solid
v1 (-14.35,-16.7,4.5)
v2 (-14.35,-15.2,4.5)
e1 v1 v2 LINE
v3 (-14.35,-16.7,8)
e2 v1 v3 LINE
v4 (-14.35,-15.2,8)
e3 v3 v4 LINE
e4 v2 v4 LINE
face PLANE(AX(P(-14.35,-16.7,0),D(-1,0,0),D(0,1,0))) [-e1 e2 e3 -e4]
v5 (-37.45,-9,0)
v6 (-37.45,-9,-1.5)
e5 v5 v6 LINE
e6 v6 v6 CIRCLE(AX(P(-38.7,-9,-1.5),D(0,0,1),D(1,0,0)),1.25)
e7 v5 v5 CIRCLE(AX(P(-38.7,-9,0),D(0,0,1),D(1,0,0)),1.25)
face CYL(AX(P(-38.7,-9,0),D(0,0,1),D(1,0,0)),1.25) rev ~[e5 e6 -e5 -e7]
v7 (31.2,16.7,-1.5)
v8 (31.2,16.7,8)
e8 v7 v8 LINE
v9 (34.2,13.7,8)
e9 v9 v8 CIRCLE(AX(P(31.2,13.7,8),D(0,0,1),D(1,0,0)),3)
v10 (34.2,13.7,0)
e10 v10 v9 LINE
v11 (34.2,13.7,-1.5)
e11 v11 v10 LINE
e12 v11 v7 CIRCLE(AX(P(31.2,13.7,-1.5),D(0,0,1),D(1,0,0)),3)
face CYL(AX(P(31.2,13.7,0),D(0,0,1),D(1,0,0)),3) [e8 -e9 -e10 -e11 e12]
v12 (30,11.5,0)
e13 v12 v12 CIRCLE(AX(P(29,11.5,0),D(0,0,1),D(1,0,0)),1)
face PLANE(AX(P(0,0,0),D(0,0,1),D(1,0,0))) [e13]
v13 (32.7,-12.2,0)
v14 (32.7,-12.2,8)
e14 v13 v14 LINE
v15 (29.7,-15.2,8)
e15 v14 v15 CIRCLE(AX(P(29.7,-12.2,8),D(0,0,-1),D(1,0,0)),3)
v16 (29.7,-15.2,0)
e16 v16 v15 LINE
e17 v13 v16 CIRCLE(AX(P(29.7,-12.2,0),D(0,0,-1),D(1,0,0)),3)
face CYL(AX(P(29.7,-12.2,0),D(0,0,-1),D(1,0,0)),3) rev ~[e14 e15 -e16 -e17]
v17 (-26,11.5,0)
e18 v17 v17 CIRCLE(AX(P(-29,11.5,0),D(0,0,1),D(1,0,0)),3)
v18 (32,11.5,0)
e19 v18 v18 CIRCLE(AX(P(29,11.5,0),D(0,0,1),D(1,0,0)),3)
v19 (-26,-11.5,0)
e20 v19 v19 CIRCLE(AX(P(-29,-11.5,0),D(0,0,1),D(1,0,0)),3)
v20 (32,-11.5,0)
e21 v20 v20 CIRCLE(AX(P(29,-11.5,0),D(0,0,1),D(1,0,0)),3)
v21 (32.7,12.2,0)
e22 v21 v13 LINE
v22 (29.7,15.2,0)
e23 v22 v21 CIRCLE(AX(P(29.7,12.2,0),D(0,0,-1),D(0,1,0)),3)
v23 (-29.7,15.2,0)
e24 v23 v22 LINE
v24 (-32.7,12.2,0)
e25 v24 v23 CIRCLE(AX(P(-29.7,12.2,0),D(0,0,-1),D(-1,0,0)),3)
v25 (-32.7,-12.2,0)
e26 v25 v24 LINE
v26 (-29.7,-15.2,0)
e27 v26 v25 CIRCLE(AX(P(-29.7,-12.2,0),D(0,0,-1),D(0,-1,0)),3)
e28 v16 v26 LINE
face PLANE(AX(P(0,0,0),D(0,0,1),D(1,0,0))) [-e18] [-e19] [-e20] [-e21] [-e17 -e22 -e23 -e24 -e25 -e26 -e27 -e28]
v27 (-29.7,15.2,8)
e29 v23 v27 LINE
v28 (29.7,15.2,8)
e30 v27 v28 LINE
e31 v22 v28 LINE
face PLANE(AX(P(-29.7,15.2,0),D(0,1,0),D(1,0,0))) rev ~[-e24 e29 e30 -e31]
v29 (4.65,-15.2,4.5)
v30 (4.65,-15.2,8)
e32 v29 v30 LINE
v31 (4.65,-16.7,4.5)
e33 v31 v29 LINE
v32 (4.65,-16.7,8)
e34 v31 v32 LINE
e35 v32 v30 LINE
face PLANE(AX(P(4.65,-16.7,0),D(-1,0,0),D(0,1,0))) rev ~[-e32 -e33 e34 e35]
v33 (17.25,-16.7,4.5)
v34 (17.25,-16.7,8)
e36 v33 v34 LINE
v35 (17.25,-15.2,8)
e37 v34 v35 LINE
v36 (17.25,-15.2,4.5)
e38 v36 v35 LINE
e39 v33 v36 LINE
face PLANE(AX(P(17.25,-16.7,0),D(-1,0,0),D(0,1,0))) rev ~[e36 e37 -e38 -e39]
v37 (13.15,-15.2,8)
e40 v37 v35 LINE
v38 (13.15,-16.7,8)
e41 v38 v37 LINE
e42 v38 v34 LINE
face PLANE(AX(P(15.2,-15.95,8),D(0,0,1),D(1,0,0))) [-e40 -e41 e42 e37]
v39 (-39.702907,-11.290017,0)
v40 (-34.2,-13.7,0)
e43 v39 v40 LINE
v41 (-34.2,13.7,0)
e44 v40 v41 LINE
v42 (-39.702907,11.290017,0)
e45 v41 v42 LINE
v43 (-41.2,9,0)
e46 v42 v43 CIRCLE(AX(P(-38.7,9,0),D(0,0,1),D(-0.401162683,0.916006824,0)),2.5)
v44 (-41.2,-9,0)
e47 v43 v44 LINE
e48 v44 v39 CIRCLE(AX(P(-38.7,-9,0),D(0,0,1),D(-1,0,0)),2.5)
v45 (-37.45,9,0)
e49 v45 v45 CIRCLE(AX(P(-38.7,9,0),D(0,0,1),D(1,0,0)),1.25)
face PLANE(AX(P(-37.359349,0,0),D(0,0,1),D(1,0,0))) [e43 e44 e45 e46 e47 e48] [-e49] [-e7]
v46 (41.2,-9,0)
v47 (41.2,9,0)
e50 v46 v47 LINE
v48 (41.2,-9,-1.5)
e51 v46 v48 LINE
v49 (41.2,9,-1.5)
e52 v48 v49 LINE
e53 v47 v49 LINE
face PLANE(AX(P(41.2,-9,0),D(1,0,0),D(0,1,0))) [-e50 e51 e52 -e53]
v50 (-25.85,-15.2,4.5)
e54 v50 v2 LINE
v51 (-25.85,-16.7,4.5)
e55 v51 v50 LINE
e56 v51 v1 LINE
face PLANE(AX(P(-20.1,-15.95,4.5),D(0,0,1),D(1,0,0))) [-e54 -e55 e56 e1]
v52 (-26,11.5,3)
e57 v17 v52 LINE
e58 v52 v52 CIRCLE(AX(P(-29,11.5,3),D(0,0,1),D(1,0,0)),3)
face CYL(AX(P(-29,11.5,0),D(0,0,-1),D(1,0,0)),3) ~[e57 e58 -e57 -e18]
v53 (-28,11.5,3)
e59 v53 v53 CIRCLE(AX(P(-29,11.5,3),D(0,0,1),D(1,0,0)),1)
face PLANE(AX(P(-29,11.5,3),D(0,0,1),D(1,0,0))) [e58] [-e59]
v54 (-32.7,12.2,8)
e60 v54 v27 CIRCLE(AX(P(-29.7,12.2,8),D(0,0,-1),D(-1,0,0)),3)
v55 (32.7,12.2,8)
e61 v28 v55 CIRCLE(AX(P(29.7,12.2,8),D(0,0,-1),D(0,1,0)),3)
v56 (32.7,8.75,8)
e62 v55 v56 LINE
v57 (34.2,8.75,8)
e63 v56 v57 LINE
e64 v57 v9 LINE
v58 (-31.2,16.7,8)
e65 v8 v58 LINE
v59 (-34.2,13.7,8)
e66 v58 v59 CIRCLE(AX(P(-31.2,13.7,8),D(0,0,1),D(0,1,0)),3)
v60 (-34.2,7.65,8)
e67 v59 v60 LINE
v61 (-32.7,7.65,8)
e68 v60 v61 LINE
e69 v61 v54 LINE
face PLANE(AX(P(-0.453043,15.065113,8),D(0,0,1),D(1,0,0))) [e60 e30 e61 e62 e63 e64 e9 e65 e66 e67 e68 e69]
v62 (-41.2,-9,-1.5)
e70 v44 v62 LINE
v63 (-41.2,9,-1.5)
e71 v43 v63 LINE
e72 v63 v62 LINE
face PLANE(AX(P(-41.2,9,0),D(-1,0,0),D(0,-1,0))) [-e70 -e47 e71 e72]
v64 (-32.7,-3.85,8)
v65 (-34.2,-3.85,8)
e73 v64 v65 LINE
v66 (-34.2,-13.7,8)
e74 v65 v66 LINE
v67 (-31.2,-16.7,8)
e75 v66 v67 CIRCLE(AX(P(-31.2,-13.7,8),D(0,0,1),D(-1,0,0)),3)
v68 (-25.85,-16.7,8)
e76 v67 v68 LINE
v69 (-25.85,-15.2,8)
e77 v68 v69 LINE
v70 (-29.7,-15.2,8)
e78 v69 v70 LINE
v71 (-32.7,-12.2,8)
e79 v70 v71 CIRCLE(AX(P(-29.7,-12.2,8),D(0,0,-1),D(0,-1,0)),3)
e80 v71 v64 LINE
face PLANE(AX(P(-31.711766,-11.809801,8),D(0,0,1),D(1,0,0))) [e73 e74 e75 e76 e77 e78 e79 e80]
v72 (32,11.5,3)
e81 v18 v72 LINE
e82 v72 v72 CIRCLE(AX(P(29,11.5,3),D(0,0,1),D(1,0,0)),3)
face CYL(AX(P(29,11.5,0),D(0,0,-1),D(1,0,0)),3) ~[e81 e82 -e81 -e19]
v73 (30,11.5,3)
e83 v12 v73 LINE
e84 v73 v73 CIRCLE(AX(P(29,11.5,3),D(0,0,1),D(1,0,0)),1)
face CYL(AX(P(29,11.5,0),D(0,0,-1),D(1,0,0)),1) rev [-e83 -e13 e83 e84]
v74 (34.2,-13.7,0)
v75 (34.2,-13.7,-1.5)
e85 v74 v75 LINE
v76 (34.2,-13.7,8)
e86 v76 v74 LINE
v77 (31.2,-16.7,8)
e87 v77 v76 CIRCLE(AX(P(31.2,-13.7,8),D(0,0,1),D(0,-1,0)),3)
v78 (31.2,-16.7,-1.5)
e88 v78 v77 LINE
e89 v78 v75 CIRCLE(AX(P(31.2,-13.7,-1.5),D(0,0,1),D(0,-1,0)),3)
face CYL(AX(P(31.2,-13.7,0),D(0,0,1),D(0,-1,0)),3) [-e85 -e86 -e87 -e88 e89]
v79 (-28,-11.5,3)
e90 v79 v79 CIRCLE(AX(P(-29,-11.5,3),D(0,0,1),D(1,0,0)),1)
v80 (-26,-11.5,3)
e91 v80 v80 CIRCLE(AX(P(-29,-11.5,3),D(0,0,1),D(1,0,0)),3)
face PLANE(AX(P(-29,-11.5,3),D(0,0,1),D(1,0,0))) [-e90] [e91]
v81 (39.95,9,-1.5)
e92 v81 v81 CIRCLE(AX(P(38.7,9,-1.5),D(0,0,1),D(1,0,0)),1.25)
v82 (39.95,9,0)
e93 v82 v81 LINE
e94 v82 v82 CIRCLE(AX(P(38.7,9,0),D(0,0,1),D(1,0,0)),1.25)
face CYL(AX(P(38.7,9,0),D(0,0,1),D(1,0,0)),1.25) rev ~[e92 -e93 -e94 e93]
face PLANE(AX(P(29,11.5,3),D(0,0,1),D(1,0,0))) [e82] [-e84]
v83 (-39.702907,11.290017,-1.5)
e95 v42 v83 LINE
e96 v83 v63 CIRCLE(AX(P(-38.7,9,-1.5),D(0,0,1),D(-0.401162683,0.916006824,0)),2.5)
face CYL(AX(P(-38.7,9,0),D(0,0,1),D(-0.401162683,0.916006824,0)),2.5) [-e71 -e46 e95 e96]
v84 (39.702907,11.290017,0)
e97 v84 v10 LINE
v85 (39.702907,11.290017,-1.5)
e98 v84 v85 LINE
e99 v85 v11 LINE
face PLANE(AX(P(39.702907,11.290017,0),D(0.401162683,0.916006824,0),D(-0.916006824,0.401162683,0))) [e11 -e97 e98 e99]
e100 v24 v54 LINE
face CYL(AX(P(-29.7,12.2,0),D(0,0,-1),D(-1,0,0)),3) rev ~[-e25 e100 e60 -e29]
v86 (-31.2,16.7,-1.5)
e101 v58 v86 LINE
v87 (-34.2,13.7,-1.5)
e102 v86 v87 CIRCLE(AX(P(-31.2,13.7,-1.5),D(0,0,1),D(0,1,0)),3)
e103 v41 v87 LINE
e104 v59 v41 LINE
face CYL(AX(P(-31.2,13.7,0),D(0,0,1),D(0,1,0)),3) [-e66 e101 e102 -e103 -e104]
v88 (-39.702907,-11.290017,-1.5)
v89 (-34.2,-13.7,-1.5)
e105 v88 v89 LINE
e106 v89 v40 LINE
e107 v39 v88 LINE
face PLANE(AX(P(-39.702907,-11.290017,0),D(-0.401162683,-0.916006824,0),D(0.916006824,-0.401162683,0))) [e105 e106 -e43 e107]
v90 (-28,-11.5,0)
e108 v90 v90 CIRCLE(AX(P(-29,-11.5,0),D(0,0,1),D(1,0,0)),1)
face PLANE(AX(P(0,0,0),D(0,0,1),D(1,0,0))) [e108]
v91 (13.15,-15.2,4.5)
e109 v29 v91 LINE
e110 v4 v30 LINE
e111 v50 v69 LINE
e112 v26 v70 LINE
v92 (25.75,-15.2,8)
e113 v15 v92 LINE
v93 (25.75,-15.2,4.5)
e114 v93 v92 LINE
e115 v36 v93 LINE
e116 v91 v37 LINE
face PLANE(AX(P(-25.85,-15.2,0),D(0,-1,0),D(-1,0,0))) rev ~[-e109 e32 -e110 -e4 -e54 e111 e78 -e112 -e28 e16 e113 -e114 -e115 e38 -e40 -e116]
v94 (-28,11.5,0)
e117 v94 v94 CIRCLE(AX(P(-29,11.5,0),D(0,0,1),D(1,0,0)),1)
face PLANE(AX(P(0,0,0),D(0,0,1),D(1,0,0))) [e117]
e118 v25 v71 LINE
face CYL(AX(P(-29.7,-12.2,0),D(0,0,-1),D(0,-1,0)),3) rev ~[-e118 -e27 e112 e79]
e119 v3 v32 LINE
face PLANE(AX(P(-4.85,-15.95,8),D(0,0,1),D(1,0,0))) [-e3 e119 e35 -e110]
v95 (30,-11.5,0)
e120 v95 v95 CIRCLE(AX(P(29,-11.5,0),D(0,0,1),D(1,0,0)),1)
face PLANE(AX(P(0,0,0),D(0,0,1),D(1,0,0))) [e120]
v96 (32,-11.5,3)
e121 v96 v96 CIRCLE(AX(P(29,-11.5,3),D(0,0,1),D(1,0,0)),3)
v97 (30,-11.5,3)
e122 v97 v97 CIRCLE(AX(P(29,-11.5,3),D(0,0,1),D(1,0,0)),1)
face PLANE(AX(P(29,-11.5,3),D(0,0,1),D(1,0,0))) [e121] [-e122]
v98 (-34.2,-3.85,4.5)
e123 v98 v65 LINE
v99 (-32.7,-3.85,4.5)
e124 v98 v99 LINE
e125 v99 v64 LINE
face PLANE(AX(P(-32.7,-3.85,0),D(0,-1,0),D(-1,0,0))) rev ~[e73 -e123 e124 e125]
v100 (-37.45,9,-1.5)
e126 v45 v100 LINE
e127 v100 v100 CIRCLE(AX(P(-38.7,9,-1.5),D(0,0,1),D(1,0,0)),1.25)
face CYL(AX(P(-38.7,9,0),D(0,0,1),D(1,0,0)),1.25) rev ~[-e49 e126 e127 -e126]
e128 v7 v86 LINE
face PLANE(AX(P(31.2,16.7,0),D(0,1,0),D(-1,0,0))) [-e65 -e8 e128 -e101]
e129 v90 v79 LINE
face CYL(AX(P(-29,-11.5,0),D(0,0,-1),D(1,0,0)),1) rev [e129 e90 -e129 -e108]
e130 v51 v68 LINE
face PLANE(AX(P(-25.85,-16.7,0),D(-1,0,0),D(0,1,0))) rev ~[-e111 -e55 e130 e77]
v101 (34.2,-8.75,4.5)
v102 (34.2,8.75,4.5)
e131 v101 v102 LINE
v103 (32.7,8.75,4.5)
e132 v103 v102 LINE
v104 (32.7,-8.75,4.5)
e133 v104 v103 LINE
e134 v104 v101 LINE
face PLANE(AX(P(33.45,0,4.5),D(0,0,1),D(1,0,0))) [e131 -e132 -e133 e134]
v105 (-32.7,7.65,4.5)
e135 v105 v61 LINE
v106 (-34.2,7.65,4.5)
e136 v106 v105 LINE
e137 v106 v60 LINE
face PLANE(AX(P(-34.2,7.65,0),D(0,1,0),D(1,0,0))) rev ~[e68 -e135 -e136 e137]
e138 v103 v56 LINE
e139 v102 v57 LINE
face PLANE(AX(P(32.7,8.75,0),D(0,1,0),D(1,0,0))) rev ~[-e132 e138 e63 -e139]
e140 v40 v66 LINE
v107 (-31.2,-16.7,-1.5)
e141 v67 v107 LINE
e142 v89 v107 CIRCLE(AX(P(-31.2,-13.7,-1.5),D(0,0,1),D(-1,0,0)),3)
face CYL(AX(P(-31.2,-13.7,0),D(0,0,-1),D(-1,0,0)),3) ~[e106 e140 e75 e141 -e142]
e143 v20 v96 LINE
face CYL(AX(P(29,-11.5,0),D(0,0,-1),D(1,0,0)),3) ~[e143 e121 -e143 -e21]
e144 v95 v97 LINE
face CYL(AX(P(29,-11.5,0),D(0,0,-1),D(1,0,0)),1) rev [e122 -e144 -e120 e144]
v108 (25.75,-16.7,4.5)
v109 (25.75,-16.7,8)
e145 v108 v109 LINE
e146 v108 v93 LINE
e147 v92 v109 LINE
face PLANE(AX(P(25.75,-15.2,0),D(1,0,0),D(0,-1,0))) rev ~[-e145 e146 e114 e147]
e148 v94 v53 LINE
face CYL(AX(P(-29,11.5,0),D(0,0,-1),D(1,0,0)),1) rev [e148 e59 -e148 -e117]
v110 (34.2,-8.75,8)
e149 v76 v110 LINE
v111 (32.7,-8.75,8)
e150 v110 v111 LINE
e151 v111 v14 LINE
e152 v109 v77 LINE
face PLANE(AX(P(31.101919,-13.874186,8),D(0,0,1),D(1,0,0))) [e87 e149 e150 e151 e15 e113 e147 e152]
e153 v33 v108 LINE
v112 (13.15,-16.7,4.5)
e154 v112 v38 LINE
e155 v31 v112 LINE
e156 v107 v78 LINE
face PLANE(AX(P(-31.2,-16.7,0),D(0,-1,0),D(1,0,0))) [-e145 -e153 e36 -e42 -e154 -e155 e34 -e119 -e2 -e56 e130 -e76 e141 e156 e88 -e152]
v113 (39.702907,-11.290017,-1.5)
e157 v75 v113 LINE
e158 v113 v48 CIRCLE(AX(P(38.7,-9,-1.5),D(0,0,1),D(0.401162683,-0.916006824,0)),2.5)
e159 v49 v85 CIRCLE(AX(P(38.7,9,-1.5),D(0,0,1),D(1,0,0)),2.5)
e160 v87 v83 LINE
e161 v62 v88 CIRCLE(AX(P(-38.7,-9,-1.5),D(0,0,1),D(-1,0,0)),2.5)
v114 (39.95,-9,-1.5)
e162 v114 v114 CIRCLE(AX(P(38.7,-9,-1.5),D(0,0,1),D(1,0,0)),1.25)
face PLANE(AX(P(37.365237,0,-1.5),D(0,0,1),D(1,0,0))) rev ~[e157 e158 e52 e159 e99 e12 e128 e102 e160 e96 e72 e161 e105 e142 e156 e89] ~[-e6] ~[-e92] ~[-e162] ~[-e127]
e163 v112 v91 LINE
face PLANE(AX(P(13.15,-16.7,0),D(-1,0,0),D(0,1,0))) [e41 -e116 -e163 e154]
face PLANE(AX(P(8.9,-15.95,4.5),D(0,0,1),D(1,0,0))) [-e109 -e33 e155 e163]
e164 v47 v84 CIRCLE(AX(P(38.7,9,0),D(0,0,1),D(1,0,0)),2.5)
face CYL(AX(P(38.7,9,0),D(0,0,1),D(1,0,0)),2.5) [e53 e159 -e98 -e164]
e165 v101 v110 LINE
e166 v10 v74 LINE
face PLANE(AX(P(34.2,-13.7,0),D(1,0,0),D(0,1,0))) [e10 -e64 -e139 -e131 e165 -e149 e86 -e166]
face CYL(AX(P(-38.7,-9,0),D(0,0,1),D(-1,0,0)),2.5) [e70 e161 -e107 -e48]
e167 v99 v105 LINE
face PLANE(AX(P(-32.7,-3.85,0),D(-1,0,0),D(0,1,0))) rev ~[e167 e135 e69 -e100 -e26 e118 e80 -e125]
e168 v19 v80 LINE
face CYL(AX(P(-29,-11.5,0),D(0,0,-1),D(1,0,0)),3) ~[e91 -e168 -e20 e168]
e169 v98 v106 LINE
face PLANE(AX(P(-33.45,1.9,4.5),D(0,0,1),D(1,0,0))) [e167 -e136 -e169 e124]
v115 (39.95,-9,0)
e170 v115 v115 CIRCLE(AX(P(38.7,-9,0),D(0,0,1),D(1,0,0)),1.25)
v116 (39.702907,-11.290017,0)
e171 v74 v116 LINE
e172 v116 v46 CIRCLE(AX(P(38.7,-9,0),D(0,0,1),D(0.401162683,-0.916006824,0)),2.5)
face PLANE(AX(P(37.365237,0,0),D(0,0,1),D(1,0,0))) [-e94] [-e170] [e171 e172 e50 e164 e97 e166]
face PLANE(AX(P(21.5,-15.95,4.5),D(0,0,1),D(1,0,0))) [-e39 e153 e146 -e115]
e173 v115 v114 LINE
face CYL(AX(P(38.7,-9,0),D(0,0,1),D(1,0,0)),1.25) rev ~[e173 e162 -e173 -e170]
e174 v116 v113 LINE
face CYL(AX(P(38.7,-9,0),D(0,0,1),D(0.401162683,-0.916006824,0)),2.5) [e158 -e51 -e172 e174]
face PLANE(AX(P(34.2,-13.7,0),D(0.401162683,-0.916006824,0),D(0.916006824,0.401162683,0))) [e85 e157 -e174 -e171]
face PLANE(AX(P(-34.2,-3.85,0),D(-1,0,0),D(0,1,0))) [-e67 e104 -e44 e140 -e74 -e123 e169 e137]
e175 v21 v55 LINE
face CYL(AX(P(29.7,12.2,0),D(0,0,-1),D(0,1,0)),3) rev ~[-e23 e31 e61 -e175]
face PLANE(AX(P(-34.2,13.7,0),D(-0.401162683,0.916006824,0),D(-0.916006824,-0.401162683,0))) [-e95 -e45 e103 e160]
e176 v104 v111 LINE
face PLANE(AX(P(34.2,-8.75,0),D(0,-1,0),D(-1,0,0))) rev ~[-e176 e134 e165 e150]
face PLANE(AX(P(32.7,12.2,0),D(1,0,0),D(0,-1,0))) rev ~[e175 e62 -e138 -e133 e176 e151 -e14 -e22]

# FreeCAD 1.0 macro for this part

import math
import FreeCAD as App
import Part
import Sketcher


def add_polygon(sketch, points):
    """Adds a closed chain of lines whose ends are joined by coincident constraints."""
    first, n = sketch.GeometryCount, len(points)
    for a, b in zip(points, points[1:] + points[:1]):
        sketch.addGeometry(Part.LineSegment(App.Vector(*a, 0), App.Vector(*b, 0)), False)
    for i in range(n):
        sketch.addConstraint(Sketcher.Constraint("Coincident", first + i, 2, first + (i + 1) % n, 1))

doc = App.newDocument("Part")
body = doc.addObject("PartDesign::Body", "Body")

# Sketch on XY plane
sketch1 = body.newObject("Sketcher::SketchObject", "Sketch")
sketch1.AttachmentSupport = (doc.getObject("XY_Plane"), [""])
sketch1.MapMode = "FlatFace"
sketch1.addGeometry(Part.ArcOfCircle(Part.Circle(App.Vector(31.2, 13.7, 0), App.Vector(0, 0, 1), 3), math.radians(0), math.radians(90)), False)
sketch1.addGeometry(Part.LineSegment(App.Vector(31.2, 16.7, 0), App.Vector(-31.2, 16.7, 0)), False)
sketch1.addGeometry(Part.ArcOfCircle(Part.Circle(App.Vector(-31.2, 13.7, 0), App.Vector(0, 0, 1), 3), math.radians(90), math.radians(180)), False)
sketch1.addGeometry(Part.LineSegment(App.Vector(-34.2, 13.7, 0), App.Vector(-34.2, -13.7, 0)), False)
sketch1.addGeometry(Part.ArcOfCircle(Part.Circle(App.Vector(-31.2, -13.7, 0), App.Vector(0, 0, 1), 3), math.radians(180), math.radians(270)), False)
sketch1.addGeometry(Part.LineSegment(App.Vector(-31.2, -16.7, 0), App.Vector(31.2, -16.7, 0)), False)
sketch1.addGeometry(Part.ArcOfCircle(Part.Circle(App.Vector(31.2, -13.7, 0), App.Vector(0, 0, 1), 3), math.radians(-90), math.radians(0)), False)
sketch1.addGeometry(Part.LineSegment(App.Vector(34.2, -13.7, 0), App.Vector(34.2, 13.7, 0)), False)
sketch1.addConstraint(Sketcher.Constraint("Tangent", 0, 2, 1, 1))
sketch1.addConstraint(Sketcher.Constraint("Tangent", 1, 2, 2, 1))
sketch1.addConstraint(Sketcher.Constraint("Tangent", 2, 2, 3, 1))
sketch1.addConstraint(Sketcher.Constraint("Tangent", 3, 2, 4, 1))
sketch1.addConstraint(Sketcher.Constraint("Tangent", 4, 2, 5, 1))
sketch1.addConstraint(Sketcher.Constraint("Tangent", 5, 2, 6, 1))
sketch1.addConstraint(Sketcher.Constraint("Tangent", 6, 2, 7, 1))
sketch1.addConstraint(Sketcher.Constraint("Tangent", 7, 2, 0, 1))
sketch1.addConstraint(Sketcher.Constraint("Horizontal", 1))
sketch1.addConstraint(Sketcher.Constraint("Vertical", 3))
sketch1.addConstraint(Sketcher.Constraint("Horizontal", 5))
sketch1.addConstraint(Sketcher.Constraint("Vertical", 7))
sketch1.addConstraint(Sketcher.Constraint("Equal", 0, 2))
sketch1.addConstraint(Sketcher.Constraint("Equal", 2, 4))
sketch1.addConstraint(Sketcher.Constraint("Equal", 4, 6))
sketch1.addConstraint(Sketcher.Constraint("Symmetric", 0, 3, 4, 3, -1, 1))
sketch1.addConstraint(Sketcher.Constraint("Radius", 0, 3.0))
sketch1.addConstraint(Sketcher.Constraint("DistanceX", 1, 2, 1, 1, 62.4))
sketch1.addConstraint(Sketcher.Constraint("DistanceY", 3, 2, 3, 1, 27.4))
pad1 = body.newObject("PartDesign::Pad", "Pad")
pad1.Profile = sketch1
pad1.Length = 1.5
pad1.Reversed = True

# Sketch on XY plane
sketch2 = body.newObject("Sketcher::SketchObject", "Sketch001")
sketch2.AttachmentSupport = (doc.getObject("XY_Plane"), [""])
sketch2.MapMode = "FlatFace"
sketch2.addGeometry(Part.Circle(App.Vector(-29, 11.5, 0), App.Vector(0, 0, 1), 3), False)
sketch2.addGeometry(Part.Circle(App.Vector(-29, 11.5, 0), App.Vector(0, 0, 1), 1), False)
sketch2.addGeometry(Part.Circle(App.Vector(-29, -11.5, 0), App.Vector(0, 0, 1), 3), False)
sketch2.addGeometry(Part.Circle(App.Vector(-29, -11.5, 0), App.Vector(0, 0, 1), 1), False)
sketch2.addGeometry(Part.Circle(App.Vector(29, 11.5, 0), App.Vector(0, 0, 1), 3), False)
sketch2.addGeometry(Part.Circle(App.Vector(29, 11.5, 0), App.Vector(0, 0, 1), 1), False)
sketch2.addGeometry(Part.Circle(App.Vector(29, -11.5, 0), App.Vector(0, 0, 1), 3), False)
sketch2.addGeometry(Part.Circle(App.Vector(29, -11.5, 0), App.Vector(0, 0, 1), 1), False)
sketch2.addConstraint(Sketcher.Constraint("Coincident", 1, 3, 0, 3))
sketch2.addConstraint(Sketcher.Constraint("Coincident", 3, 3, 2, 3))
sketch2.addConstraint(Sketcher.Constraint("Coincident", 5, 3, 4, 3))
sketch2.addConstraint(Sketcher.Constraint("Coincident", 7, 3, 6, 3))
sketch2.addConstraint(Sketcher.Constraint("Equal", 0, 2))
sketch2.addConstraint(Sketcher.Constraint("Equal", 1, 3))
sketch2.addConstraint(Sketcher.Constraint("Equal", 2, 4))
sketch2.addConstraint(Sketcher.Constraint("Equal", 3, 5))
sketch2.addConstraint(Sketcher.Constraint("Equal", 4, 6))
sketch2.addConstraint(Sketcher.Constraint("Equal", 5, 7))
sketch2.addConstraint(Sketcher.Constraint("Symmetric", 2, 3, 4, 3, -1, 1))
sketch2.addConstraint(Sketcher.Constraint("Symmetric", 0, 3, 6, 3, -1, 1))
sketch2.addConstraint(Sketcher.Constraint("Symmetric", 0, 3, 4, 3, -2))
sketch2.addConstraint(Sketcher.Constraint("Diameter", 0, 6.0))
sketch2.addConstraint(Sketcher.Constraint("Diameter", 1, 2.0))
sketch2.addConstraint(Sketcher.Constraint("DistanceX", 0, 3, -1, 1, 29.0))
sketch2.addConstraint(Sketcher.Constraint("DistanceY", 2, 3, 0, 3, 23.0))
pad2 = body.newObject("PartDesign::Pad", "Pad001")
pad2.Profile = sketch2
pad2.Length = 3

# Sketch on XY plane
sketch3 = body.newObject("Sketcher::SketchObject", "Sketch002")
sketch3.AttachmentSupport = (doc.getObject("XY_Plane"), [""])
sketch3.MapMode = "FlatFace"
sketch3.addGeometry(Part.LineSegment(App.Vector(-32.7, -12.2, 0), App.Vector(-32.7, -3.9, 0)), False)  # 0
sketch3.addGeometry(Part.LineSegment(App.Vector(-32.7, -3.9, 0), App.Vector(-34.2, -3.9, 0)), False)  # 1
sketch3.addGeometry(Part.LineSegment(App.Vector(-34.2, -3.9, 0), App.Vector(-34.2, -13.7, 0)), False)  # 2
sketch3.addGeometry(Part.ArcOfCircle(Part.Circle(App.Vector(-31.2, -13.7, 0), App.Vector(0, 0, 1), 3), math.radians(180), math.radians(270)), False)  # 3
sketch3.addGeometry(Part.LineSegment(App.Vector(-31.2, -16.7, 0), App.Vector(-25.9, -16.7, 0)), False)  # 4
sketch3.addGeometry(Part.LineSegment(App.Vector(-25.9, -16.7, 0), App.Vector(-25.9, -15.2, 0)), False)  # 5
sketch3.addGeometry(Part.LineSegment(App.Vector(-25.9, -15.2, 0), App.Vector(-29.7, -15.2, 0)), False)  # 6
sketch3.addGeometry(Part.ArcOfCircle(Part.Circle(App.Vector(-29.7, -12.2, 0), App.Vector(0, 0, 1), 3), math.radians(180), math.radians(270)), False)  # 7
sketch3.addGeometry(Part.ArcOfCircle(Part.Circle(App.Vector(-29.7, 12.2, 0), App.Vector(0, 0, 1), 3), math.radians(90), math.radians(180)), False)  # 8
sketch3.addGeometry(Part.LineSegment(App.Vector(-29.7, 15.2, 0), App.Vector(29.7, 15.2, 0)), False)  # 9
sketch3.addGeometry(Part.ArcOfCircle(Part.Circle(App.Vector(29.7, 12.2, 0), App.Vector(0, 0, 1), 3), math.radians(0), math.radians(90)), False)  # 10
sketch3.addGeometry(Part.LineSegment(App.Vector(32.7, 12.2, 0), App.Vector(32.7, 8.8, 0)), False)  # 11
sketch3.addGeometry(Part.LineSegment(App.Vector(32.7, 8.8, 0), App.Vector(34.2, 8.8, 0)), False)  # 12
sketch3.addGeometry(Part.LineSegment(App.Vector(34.2, 8.8, 0), App.Vector(34.2, 13.7, 0)), False)  # 13
sketch3.addGeometry(Part.ArcOfCircle(Part.Circle(App.Vector(31.2, 13.7, 0), App.Vector(0, 0, 1), 3), math.radians(0), math.radians(90)), False)  # 14
sketch3.addGeometry(Part.LineSegment(App.Vector(31.2, 16.7, 0), App.Vector(-31.2, 16.7, 0)), False)  # 15
sketch3.addGeometry(Part.ArcOfCircle(Part.Circle(App.Vector(-31.2, 13.7, 0), App.Vector(0, 0, 1), 3), math.radians(90), math.radians(180)), False)  # 16
sketch3.addGeometry(Part.LineSegment(App.Vector(-34.2, 13.7, 0), App.Vector(-34.2, 7.7, 0)), False)  # 17
sketch3.addGeometry(Part.LineSegment(App.Vector(-34.2, 7.7, 0), App.Vector(-32.7, 7.7, 0)), False)  # 18
sketch3.addGeometry(Part.LineSegment(App.Vector(-32.7, 7.7, 0), App.Vector(-32.7, 12.2, 0)), False)  # 19
add_polygon(sketch3, [(-14.3, -15.2), (-14.3, -16.7), (4.7, -16.7), (4.7, -15.2)])  # lines 20-23
add_polygon(sketch3, [(13.2, -15.2), (13.2, -16.7), (17.2, -16.7), (17.2, -15.2)])  # lines 24-27
sketch3.addGeometry(Part.LineSegment(App.Vector(34.2, -8.8, 0), App.Vector(32.7, -8.8, 0)), False)  # 28
sketch3.addGeometry(Part.LineSegment(App.Vector(32.7, -8.8, 0), App.Vector(32.7, -12.2, 0)), False)  # 29
sketch3.addGeometry(Part.ArcOfCircle(Part.Circle(App.Vector(29.7, -12.2, 0), App.Vector(0, 0, 1), 3), math.radians(-90), math.radians(0)), False)  # 30
sketch3.addGeometry(Part.LineSegment(App.Vector(29.7, -15.2, 0), App.Vector(25.8, -15.2, 0)), False)  # 31
sketch3.addGeometry(Part.LineSegment(App.Vector(25.8, -15.2, 0), App.Vector(25.8, -16.7, 0)), False)  # 32
sketch3.addGeometry(Part.LineSegment(App.Vector(25.8, -16.7, 0), App.Vector(31.2, -16.7, 0)), False)  # 33
sketch3.addGeometry(Part.ArcOfCircle(Part.Circle(App.Vector(31.2, -13.7, 0), App.Vector(0, 0, 1), 3), math.radians(-90), math.radians(0)), False)  # 34
sketch3.addGeometry(Part.LineSegment(App.Vector(34.2, -13.7, 0), App.Vector(34.2, -8.8, 0)), False)  # 35
sketch3.addConstraint(Sketcher.Constraint("Coincident", 0, 2, 1, 1))
sketch3.addConstraint(Sketcher.Constraint("Coincident", 1, 2, 2, 1))
sketch3.addConstraint(Sketcher.Constraint("Tangent", 2, 2, 3, 1))
sketch3.addConstraint(Sketcher.Constraint("Tangent", 3, 2, 4, 1))
sketch3.addConstraint(Sketcher.Constraint("Coincident", 4, 2, 5, 1))
sketch3.addConstraint(Sketcher.Constraint("Coincident", 5, 2, 6, 1))
sketch3.addConstraint(Sketcher.Constraint("Tangent", 6, 2, 7, 2))
sketch3.addConstraint(Sketcher.Constraint("Tangent", 7, 1, 0, 1))
sketch3.addConstraint(Sketcher.Constraint("Tangent", 8, 1, 9, 1))
sketch3.addConstraint(Sketcher.Constraint("Tangent", 9, 2, 10, 2))
sketch3.addConstraint(Sketcher.Constraint("Tangent", 10, 1, 11, 1))
sketch3.addConstraint(Sketcher.Constraint("Coincident", 11, 2, 12, 1))
sketch3.addConstraint(Sketcher.Constraint("Coincident", 12, 2, 13, 1))
sketch3.addConstraint(Sketcher.Constraint("Tangent", 13, 2, 14, 1))
sketch3.addConstraint(Sketcher.Constraint("Tangent", 14, 2, 15, 1))
sketch3.addConstraint(Sketcher.Constraint("Tangent", 15, 2, 16, 1))
sketch3.addConstraint(Sketcher.Constraint("Tangent", 16, 2, 17, 1))
sketch3.addConstraint(Sketcher.Constraint("Coincident", 17, 2, 18, 1))
sketch3.addConstraint(Sketcher.Constraint("Coincident", 18, 2, 19, 1))
sketch3.addConstraint(Sketcher.Constraint("Tangent", 19, 2, 8, 2))
sketch3.addConstraint(Sketcher.Constraint("Coincident", 28, 2, 29, 1))
sketch3.addConstraint(Sketcher.Constraint("Tangent", 29, 2, 30, 2))
sketch3.addConstraint(Sketcher.Constraint("Tangent", 30, 1, 31, 1))
sketch3.addConstraint(Sketcher.Constraint("Coincident", 31, 2, 32, 1))
sketch3.addConstraint(Sketcher.Constraint("Coincident", 32, 2, 33, 1))
sketch3.addConstraint(Sketcher.Constraint("Tangent", 33, 2, 34, 1))
sketch3.addConstraint(Sketcher.Constraint("Tangent", 34, 2, 35, 1))
sketch3.addConstraint(Sketcher.Constraint("Coincident", 35, 2, 28, 1))
sketch3.addConstraint(Sketcher.Constraint("Vertical", 0))
sketch3.addConstraint(Sketcher.Constraint("Horizontal", 1))
sketch3.addConstraint(Sketcher.Constraint("Vertical", 2))
sketch3.addConstraint(Sketcher.Constraint("Horizontal", 4))
sketch3.addConstraint(Sketcher.Constraint("Vertical", 5))
sketch3.addConstraint(Sketcher.Constraint("Horizontal", 6))
sketch3.addConstraint(Sketcher.Constraint("Horizontal", 9))
sketch3.addConstraint(Sketcher.Constraint("Vertical", 11))
sketch3.addConstraint(Sketcher.Constraint("Horizontal", 12))
sketch3.addConstraint(Sketcher.Constraint("Vertical", 13))
sketch3.addConstraint(Sketcher.Constraint("Horizontal", 15))
sketch3.addConstraint(Sketcher.Constraint("Vertical", 17))
sketch3.addConstraint(Sketcher.Constraint("Horizontal", 18))
sketch3.addConstraint(Sketcher.Constraint("Vertical", 19))
sketch3.addConstraint(Sketcher.Constraint("Vertical", 20))
sketch3.addConstraint(Sketcher.Constraint("Horizontal", 21))
sketch3.addConstraint(Sketcher.Constraint("Vertical", 22))
sketch3.addConstraint(Sketcher.Constraint("Horizontal", 23))
sketch3.addConstraint(Sketcher.Constraint("Vertical", 24))
sketch3.addConstraint(Sketcher.Constraint("Horizontal", 25))
sketch3.addConstraint(Sketcher.Constraint("Vertical", 26))
sketch3.addConstraint(Sketcher.Constraint("Horizontal", 27))
sketch3.addConstraint(Sketcher.Constraint("Horizontal", 28))
sketch3.addConstraint(Sketcher.Constraint("Vertical", 29))
sketch3.addConstraint(Sketcher.Constraint("Horizontal", 31))
sketch3.addConstraint(Sketcher.Constraint("Vertical", 32))
sketch3.addConstraint(Sketcher.Constraint("Horizontal", 33))
sketch3.addConstraint(Sketcher.Constraint("Vertical", 35))
sketch3.addConstraint(Sketcher.Constraint("Equal", 3, 7))
sketch3.addConstraint(Sketcher.Constraint("Equal", 7, 8))
sketch3.addConstraint(Sketcher.Constraint("Equal", 8, 10))
sketch3.addConstraint(Sketcher.Constraint("Equal", 10, 14))
sketch3.addConstraint(Sketcher.Constraint("Equal", 14, 16))
sketch3.addConstraint(Sketcher.Constraint("Equal", 16, 30))
sketch3.addConstraint(Sketcher.Constraint("Equal", 30, 34))
sketch3.addConstraint(Sketcher.Constraint("Symmetric", 7, 3, 10, 3, -1, 1))
sketch3.addConstraint(Sketcher.Constraint("Symmetric", 3, 3, 14, 3, -1, 1))
sketch3.addConstraint(Sketcher.Constraint("Symmetric", 8, 3, 30, 3, -1, 1))
sketch3.addConstraint(Sketcher.Constraint("Symmetric", 16, 3, 34, 3, -1, 1))
sketch3.addConstraint(Sketcher.Constraint("Symmetric", 11, 2, 28, 2, -1))
sketch3.addConstraint(Sketcher.Constraint("Horizontal", 4, 2, 20, 2))
sketch3.addConstraint(Sketcher.Constraint("Horizontal", 6, 2, 22, 2))
sketch3.addConstraint(Sketcher.Constraint("Horizontal", 21, 2, 24, 2))
sketch3.addConstraint(Sketcher.Constraint("Horizontal", 23, 2, 26, 2))
sketch3.addConstraint(Sketcher.Constraint("Vertical", 3, 3, 16, 3))
sketch3.addConstraint(Sketcher.Constraint("Equal", 28, 5))
sketch3.addConstraint(Sketcher.Constraint("Radius", 3, 3.0))
sketch3.addConstraint(Sketcher.Constraint("DistanceX", 21, 1, 21, 2, 19.0))
sketch3.addConstraint(Sketcher.Constraint("DistanceX", 1, 2, 1, 1, 1.5))
sketch3.addConstraint(Sketcher.Constraint("DistanceX", 9, 1, 9, 2, 59.4))
sketch3.addConstraint(Sketcher.Constraint("DistanceX", 25, 1, 25, 2, 4.1))
sketch3.addConstraint(Sketcher.Constraint("DistanceX", 4, 1, 4, 2, 5.35))
sketch3.addConstraint(Sketcher.Constraint("DistanceX", 31, 2, 31, 1, 3.95))
sketch3.addConstraint(Sketcher.Constraint("DistanceY", 0, 1, 0, 2, 8.35))
sketch3.addConstraint(Sketcher.Constraint("DistanceY", 11, 2, 11, 1, 3.45))
sketch3.addConstraint(Sketcher.Constraint("DistanceY", 17, 2, 17, 1, 6.05))
sketch3.addConstraint(Sketcher.Constraint("DistanceY", 3, 3, -1, 1, 13.7))
sketch3.addConstraint(Sketcher.Constraint("DistanceX", 4, 2, 20, 2, 11.5))
sketch3.addConstraint(Sketcher.Constraint("DistanceX", 21, 2, 24, 2, 8.5))
pad3 = body.newObject("PartDesign::Pad", "Pad002")
pad3.Profile = sketch3
pad3.Length = 8

# Sketch on XY plane
sketch4 = body.newObject("Sketcher::SketchObject", "Sketch003")
sketch4.AttachmentSupport = (doc.getObject("XY_Plane"), [""])
sketch4.MapMode = "FlatFace"
add_polygon(sketch4, [(-34.2, 7.7), (-34.2, -3.9), (-32.7, -3.9), (-32.7, 7.7)])  # lines 0-3
add_polygon(sketch4, [(-25.9, -15.2), (-25.9, -16.7), (-14.3, -16.7), (-14.3, -15.2)])  # lines 4-7
add_polygon(sketch4, [(4.7, -15.2), (4.7, -16.7), (13.2, -16.7), (13.2, -15.2)])  # lines 8-11
add_polygon(sketch4, [(17.2, -15.2), (17.2, -16.7), (25.8, -16.7), (25.8, -15.2)])  # lines 12-15
add_polygon(sketch4, [(32.7, 8.8), (32.7, -8.8), (34.2, -8.8), (34.2, 8.8)])  # lines 16-19
sketch4.addConstraint(Sketcher.Constraint("Vertical", 0))
sketch4.addConstraint(Sketcher.Constraint("Horizontal", 1))
sketch4.addConstraint(Sketcher.Constraint("Vertical", 2))
sketch4.addConstraint(Sketcher.Constraint("Horizontal", 3))
sketch4.addConstraint(Sketcher.Constraint("Vertical", 4))
sketch4.addConstraint(Sketcher.Constraint("Horizontal", 5))
sketch4.addConstraint(Sketcher.Constraint("Vertical", 6))
sketch4.addConstraint(Sketcher.Constraint("Horizontal", 7))
sketch4.addConstraint(Sketcher.Constraint("Vertical", 8))
sketch4.addConstraint(Sketcher.Constraint("Horizontal", 9))
sketch4.addConstraint(Sketcher.Constraint("Vertical", 10))
sketch4.addConstraint(Sketcher.Constraint("Horizontal", 11))
sketch4.addConstraint(Sketcher.Constraint("Vertical", 12))
sketch4.addConstraint(Sketcher.Constraint("Horizontal", 13))
sketch4.addConstraint(Sketcher.Constraint("Vertical", 14))
sketch4.addConstraint(Sketcher.Constraint("Horizontal", 15))
sketch4.addConstraint(Sketcher.Constraint("Vertical", 16))
sketch4.addConstraint(Sketcher.Constraint("Horizontal", 17))
sketch4.addConstraint(Sketcher.Constraint("Vertical", 18))
sketch4.addConstraint(Sketcher.Constraint("Horizontal", 19))
sketch4.addConstraint(Sketcher.Constraint("Horizontal", 5, 2, 8, 2))
sketch4.addConstraint(Sketcher.Constraint("Horizontal", 7, 2, 10, 2))
sketch4.addConstraint(Sketcher.Constraint("Horizontal", 9, 2, 12, 2))
sketch4.addConstraint(Sketcher.Constraint("Horizontal", 11, 2, 14, 2))
sketch4.addConstraint(Sketcher.Constraint("Equal", 11, 13))
sketch4.addConstraint(Sketcher.Constraint("Equal", 3, 17))
sketch4.addConstraint(Sketcher.Constraint("Equal", 7, 0))
sketch4.addConstraint(Sketcher.Constraint("Equal", 19, 4))
sketch4.addConstraint(Sketcher.Constraint("DistanceX", 1, 1, 1, 2, 1.5))
sketch4.addConstraint(Sketcher.Constraint("DistanceX", 5, 1, 5, 2, 11.5))
sketch4.addConstraint(Sketcher.Constraint("DistanceX", 9, 1, 9, 2, 8.5))
sketch4.addConstraint(Sketcher.Constraint("DistanceY", 16, 2, 16, 1, 17.5))
sketch4.addConstraint(Sketcher.Constraint("DistanceX", 5, 2, 8, 2, 19.0))
sketch4.addConstraint(Sketcher.Constraint("DistanceX", 0, 2, -1, 1, 34.2))
sketch4.addConstraint(Sketcher.Constraint("DistanceY", 4, 2, -1, 1, 16.7))
sketch4.addConstraint(Sketcher.Constraint("DistanceX", -1, 1, 16, 2, 32.7))
sketch4.addConstraint(Sketcher.Constraint("DistanceX", 9, 2, 12, 2, 4.1))
sketch4.addConstraint(Sketcher.Constraint("DistanceY", 0, 2, -1, 1, 3.85))
sketch4.addConstraint(Sketcher.Constraint("DistanceX", 4, 2, -1, 1, 25.85))
sketch4.addConstraint(Sketcher.Constraint("DistanceY", 16, 2, -1, 1, 8.75))
pad4 = body.newObject("PartDesign::Pad", "Pad003")
pad4.Profile = sketch4
pad4.Length = 4.5

# Sketch on XY plane
sketch5 = body.newObject("Sketcher::SketchObject", "Sketch004")
sketch5.AttachmentSupport = (doc.getObject("XY_Plane"), [""])
sketch5.MapMode = "FlatFace"
sketch5.addGeometry(Part.LineSegment(App.Vector(39.7, 11.3, 0), App.Vector(34.2, 13.7, 0)), False)
sketch5.addGeometry(Part.LineSegment(App.Vector(34.2, 13.7, 0), App.Vector(34.2, -13.7, 0)), False)
sketch5.addGeometry(Part.LineSegment(App.Vector(34.2, -13.7, 0), App.Vector(39.7, -11.3, 0)), False)
sketch5.addGeometry(Part.ArcOfCircle(Part.Circle(App.Vector(38.7, -9, 0), App.Vector(0, 0, 1), 2.5), math.radians(-66), math.radians(0)), False)
sketch5.addGeometry(Part.LineSegment(App.Vector(41.2, -9, 0), App.Vector(41.2, 9, 0)), False)
sketch5.addGeometry(Part.ArcOfCircle(Part.Circle(App.Vector(38.7, 9, 0), App.Vector(0, 0, 1), 2.5), math.radians(0), math.radians(66)), False)
sketch5.addGeometry(Part.Circle(App.Vector(38.7, -9, 0), App.Vector(0, 0, 1), 1.2), False)
sketch5.addGeometry(Part.Circle(App.Vector(38.7, 9, 0), App.Vector(0, 0, 1), 1.2), False)
sketch5.addGeometry(Part.LineSegment(App.Vector(-34.2, -13.7, 0), App.Vector(-34.2, 13.7, 0)), False)
sketch5.addGeometry(Part.LineSegment(App.Vector(-34.2, 13.7, 0), App.Vector(-39.7, 11.3, 0)), False)
sketch5.addGeometry(Part.ArcOfCircle(Part.Circle(App.Vector(-38.7, 9, 0), App.Vector(0, 0, 1), 2.5), math.radians(114), math.radians(180)), False)
sketch5.addGeometry(Part.LineSegment(App.Vector(-41.2, 9, 0), App.Vector(-41.2, -9, 0)), False)
sketch5.addGeometry(Part.ArcOfCircle(Part.Circle(App.Vector(-38.7, -9, 0), App.Vector(0, 0, 1), 2.5), math.radians(180), math.radians(246)), False)
sketch5.addGeometry(Part.LineSegment(App.Vector(-39.7, -11.3, 0), App.Vector(-34.2, -13.7, 0)), False)
sketch5.addGeometry(Part.Circle(App.Vector(-38.7, -9, 0), App.Vector(0, 0, 1), 1.2), False)
sketch5.addGeometry(Part.Circle(App.Vector(-38.7, 9, 0), App.Vector(0, 0, 1), 1.2), False)
sketch5.addConstraint(Sketcher.Constraint("Coincident", 0, 2, 1, 1))
sketch5.addConstraint(Sketcher.Constraint("Coincident", 1, 2, 2, 1))
sketch5.addConstraint(Sketcher.Constraint("Tangent", 2, 2, 3, 1))
sketch5.addConstraint(Sketcher.Constraint("Tangent", 3, 2, 4, 1))
sketch5.addConstraint(Sketcher.Constraint("Tangent", 4, 2, 5, 1))
sketch5.addConstraint(Sketcher.Constraint("Tangent", 5, 2, 0, 1))
sketch5.addConstraint(Sketcher.Constraint("Coincident", 8, 2, 9, 1))
sketch5.addConstraint(Sketcher.Constraint("Tangent", 9, 2, 10, 1))
sketch5.addConstraint(Sketcher.Constraint("Tangent", 10, 2, 11, 1))
sketch5.addConstraint(Sketcher.Constraint("Tangent", 11, 2, 12, 1))
sketch5.addConstraint(Sketcher.Constraint("Tangent", 12, 2, 13, 1))
sketch5.addConstraint(Sketcher.Constraint("Coincident", 13, 2, 8, 1))
sketch5.addConstraint(Sketcher.Constraint("Vertical", 1))
sketch5.addConstraint(Sketcher.Constraint("Vertical", 4))
sketch5.addConstraint(Sketcher.Constraint("Vertical", 8))
sketch5.addConstraint(Sketcher.Constraint("Vertical", 11))
sketch5.addConstraint(Sketcher.Constraint("Coincident", 6, 3, 3, 3))
sketch5.addConstraint(Sketcher.Constraint("Coincident", 7, 3, 5, 3))
sketch5.addConstraint(Sketcher.Constraint("Coincident", 14, 3, 12, 3))
sketch5.addConstraint(Sketcher.Constraint("Coincident", 15, 3, 10, 3))
sketch5.addConstraint(Sketcher.Constraint("Equal", 3, 5))
sketch5.addConstraint(Sketcher.Constraint("Equal", 6, 7))
sketch5.addConstraint(Sketcher.Constraint("Equal", 5, 10))
sketch5.addConstraint(Sketcher.Constraint("Equal", 10, 12))
sketch5.addConstraint(Sketcher.Constraint("Equal", 7, 14))
sketch5.addConstraint(Sketcher.Constraint("Equal", 14, 15))
sketch5.addConstraint(Sketcher.Constraint("Symmetric", 3, 3, 10, 3, -1, 1))
sketch5.addConstraint(Sketcher.Constraint("Symmetric", 1, 2, 8, 2, -1, 1))
sketch5.addConstraint(Sketcher.Constraint("Symmetric", 5, 2, 12, 2, -1, 1))
sketch5.addConstraint(Sketcher.Constraint("Symmetric", 5, 2, 9, 2, -2))
sketch5.addConstraint(Sketcher.Constraint("Diameter", 6, 2.5))
sketch5.addConstraint(Sketcher.Constraint("Radius", 3, 2.5))
sketch5.addConstraint(Sketcher.Constraint("DistanceY", 4, 1, 4, 2, 18.0))
sketch5.addConstraint(Sketcher.Constraint("DistanceY", 1, 2, 1, 1, 27.4))
sketch5.addConstraint(Sketcher.Constraint("DistanceX", 1, 2, 3, 2, 7.0))
sketch5.addConstraint(Sketcher.Constraint("DistanceX", -1, 1, 3, 3, 38.7))
pad5 = body.newObject("PartDesign::Pad", "Pad004")
pad5.Profile = sketch5
pad5.Length = 1.5
pad5.Reversed = True

doc.recompute()
